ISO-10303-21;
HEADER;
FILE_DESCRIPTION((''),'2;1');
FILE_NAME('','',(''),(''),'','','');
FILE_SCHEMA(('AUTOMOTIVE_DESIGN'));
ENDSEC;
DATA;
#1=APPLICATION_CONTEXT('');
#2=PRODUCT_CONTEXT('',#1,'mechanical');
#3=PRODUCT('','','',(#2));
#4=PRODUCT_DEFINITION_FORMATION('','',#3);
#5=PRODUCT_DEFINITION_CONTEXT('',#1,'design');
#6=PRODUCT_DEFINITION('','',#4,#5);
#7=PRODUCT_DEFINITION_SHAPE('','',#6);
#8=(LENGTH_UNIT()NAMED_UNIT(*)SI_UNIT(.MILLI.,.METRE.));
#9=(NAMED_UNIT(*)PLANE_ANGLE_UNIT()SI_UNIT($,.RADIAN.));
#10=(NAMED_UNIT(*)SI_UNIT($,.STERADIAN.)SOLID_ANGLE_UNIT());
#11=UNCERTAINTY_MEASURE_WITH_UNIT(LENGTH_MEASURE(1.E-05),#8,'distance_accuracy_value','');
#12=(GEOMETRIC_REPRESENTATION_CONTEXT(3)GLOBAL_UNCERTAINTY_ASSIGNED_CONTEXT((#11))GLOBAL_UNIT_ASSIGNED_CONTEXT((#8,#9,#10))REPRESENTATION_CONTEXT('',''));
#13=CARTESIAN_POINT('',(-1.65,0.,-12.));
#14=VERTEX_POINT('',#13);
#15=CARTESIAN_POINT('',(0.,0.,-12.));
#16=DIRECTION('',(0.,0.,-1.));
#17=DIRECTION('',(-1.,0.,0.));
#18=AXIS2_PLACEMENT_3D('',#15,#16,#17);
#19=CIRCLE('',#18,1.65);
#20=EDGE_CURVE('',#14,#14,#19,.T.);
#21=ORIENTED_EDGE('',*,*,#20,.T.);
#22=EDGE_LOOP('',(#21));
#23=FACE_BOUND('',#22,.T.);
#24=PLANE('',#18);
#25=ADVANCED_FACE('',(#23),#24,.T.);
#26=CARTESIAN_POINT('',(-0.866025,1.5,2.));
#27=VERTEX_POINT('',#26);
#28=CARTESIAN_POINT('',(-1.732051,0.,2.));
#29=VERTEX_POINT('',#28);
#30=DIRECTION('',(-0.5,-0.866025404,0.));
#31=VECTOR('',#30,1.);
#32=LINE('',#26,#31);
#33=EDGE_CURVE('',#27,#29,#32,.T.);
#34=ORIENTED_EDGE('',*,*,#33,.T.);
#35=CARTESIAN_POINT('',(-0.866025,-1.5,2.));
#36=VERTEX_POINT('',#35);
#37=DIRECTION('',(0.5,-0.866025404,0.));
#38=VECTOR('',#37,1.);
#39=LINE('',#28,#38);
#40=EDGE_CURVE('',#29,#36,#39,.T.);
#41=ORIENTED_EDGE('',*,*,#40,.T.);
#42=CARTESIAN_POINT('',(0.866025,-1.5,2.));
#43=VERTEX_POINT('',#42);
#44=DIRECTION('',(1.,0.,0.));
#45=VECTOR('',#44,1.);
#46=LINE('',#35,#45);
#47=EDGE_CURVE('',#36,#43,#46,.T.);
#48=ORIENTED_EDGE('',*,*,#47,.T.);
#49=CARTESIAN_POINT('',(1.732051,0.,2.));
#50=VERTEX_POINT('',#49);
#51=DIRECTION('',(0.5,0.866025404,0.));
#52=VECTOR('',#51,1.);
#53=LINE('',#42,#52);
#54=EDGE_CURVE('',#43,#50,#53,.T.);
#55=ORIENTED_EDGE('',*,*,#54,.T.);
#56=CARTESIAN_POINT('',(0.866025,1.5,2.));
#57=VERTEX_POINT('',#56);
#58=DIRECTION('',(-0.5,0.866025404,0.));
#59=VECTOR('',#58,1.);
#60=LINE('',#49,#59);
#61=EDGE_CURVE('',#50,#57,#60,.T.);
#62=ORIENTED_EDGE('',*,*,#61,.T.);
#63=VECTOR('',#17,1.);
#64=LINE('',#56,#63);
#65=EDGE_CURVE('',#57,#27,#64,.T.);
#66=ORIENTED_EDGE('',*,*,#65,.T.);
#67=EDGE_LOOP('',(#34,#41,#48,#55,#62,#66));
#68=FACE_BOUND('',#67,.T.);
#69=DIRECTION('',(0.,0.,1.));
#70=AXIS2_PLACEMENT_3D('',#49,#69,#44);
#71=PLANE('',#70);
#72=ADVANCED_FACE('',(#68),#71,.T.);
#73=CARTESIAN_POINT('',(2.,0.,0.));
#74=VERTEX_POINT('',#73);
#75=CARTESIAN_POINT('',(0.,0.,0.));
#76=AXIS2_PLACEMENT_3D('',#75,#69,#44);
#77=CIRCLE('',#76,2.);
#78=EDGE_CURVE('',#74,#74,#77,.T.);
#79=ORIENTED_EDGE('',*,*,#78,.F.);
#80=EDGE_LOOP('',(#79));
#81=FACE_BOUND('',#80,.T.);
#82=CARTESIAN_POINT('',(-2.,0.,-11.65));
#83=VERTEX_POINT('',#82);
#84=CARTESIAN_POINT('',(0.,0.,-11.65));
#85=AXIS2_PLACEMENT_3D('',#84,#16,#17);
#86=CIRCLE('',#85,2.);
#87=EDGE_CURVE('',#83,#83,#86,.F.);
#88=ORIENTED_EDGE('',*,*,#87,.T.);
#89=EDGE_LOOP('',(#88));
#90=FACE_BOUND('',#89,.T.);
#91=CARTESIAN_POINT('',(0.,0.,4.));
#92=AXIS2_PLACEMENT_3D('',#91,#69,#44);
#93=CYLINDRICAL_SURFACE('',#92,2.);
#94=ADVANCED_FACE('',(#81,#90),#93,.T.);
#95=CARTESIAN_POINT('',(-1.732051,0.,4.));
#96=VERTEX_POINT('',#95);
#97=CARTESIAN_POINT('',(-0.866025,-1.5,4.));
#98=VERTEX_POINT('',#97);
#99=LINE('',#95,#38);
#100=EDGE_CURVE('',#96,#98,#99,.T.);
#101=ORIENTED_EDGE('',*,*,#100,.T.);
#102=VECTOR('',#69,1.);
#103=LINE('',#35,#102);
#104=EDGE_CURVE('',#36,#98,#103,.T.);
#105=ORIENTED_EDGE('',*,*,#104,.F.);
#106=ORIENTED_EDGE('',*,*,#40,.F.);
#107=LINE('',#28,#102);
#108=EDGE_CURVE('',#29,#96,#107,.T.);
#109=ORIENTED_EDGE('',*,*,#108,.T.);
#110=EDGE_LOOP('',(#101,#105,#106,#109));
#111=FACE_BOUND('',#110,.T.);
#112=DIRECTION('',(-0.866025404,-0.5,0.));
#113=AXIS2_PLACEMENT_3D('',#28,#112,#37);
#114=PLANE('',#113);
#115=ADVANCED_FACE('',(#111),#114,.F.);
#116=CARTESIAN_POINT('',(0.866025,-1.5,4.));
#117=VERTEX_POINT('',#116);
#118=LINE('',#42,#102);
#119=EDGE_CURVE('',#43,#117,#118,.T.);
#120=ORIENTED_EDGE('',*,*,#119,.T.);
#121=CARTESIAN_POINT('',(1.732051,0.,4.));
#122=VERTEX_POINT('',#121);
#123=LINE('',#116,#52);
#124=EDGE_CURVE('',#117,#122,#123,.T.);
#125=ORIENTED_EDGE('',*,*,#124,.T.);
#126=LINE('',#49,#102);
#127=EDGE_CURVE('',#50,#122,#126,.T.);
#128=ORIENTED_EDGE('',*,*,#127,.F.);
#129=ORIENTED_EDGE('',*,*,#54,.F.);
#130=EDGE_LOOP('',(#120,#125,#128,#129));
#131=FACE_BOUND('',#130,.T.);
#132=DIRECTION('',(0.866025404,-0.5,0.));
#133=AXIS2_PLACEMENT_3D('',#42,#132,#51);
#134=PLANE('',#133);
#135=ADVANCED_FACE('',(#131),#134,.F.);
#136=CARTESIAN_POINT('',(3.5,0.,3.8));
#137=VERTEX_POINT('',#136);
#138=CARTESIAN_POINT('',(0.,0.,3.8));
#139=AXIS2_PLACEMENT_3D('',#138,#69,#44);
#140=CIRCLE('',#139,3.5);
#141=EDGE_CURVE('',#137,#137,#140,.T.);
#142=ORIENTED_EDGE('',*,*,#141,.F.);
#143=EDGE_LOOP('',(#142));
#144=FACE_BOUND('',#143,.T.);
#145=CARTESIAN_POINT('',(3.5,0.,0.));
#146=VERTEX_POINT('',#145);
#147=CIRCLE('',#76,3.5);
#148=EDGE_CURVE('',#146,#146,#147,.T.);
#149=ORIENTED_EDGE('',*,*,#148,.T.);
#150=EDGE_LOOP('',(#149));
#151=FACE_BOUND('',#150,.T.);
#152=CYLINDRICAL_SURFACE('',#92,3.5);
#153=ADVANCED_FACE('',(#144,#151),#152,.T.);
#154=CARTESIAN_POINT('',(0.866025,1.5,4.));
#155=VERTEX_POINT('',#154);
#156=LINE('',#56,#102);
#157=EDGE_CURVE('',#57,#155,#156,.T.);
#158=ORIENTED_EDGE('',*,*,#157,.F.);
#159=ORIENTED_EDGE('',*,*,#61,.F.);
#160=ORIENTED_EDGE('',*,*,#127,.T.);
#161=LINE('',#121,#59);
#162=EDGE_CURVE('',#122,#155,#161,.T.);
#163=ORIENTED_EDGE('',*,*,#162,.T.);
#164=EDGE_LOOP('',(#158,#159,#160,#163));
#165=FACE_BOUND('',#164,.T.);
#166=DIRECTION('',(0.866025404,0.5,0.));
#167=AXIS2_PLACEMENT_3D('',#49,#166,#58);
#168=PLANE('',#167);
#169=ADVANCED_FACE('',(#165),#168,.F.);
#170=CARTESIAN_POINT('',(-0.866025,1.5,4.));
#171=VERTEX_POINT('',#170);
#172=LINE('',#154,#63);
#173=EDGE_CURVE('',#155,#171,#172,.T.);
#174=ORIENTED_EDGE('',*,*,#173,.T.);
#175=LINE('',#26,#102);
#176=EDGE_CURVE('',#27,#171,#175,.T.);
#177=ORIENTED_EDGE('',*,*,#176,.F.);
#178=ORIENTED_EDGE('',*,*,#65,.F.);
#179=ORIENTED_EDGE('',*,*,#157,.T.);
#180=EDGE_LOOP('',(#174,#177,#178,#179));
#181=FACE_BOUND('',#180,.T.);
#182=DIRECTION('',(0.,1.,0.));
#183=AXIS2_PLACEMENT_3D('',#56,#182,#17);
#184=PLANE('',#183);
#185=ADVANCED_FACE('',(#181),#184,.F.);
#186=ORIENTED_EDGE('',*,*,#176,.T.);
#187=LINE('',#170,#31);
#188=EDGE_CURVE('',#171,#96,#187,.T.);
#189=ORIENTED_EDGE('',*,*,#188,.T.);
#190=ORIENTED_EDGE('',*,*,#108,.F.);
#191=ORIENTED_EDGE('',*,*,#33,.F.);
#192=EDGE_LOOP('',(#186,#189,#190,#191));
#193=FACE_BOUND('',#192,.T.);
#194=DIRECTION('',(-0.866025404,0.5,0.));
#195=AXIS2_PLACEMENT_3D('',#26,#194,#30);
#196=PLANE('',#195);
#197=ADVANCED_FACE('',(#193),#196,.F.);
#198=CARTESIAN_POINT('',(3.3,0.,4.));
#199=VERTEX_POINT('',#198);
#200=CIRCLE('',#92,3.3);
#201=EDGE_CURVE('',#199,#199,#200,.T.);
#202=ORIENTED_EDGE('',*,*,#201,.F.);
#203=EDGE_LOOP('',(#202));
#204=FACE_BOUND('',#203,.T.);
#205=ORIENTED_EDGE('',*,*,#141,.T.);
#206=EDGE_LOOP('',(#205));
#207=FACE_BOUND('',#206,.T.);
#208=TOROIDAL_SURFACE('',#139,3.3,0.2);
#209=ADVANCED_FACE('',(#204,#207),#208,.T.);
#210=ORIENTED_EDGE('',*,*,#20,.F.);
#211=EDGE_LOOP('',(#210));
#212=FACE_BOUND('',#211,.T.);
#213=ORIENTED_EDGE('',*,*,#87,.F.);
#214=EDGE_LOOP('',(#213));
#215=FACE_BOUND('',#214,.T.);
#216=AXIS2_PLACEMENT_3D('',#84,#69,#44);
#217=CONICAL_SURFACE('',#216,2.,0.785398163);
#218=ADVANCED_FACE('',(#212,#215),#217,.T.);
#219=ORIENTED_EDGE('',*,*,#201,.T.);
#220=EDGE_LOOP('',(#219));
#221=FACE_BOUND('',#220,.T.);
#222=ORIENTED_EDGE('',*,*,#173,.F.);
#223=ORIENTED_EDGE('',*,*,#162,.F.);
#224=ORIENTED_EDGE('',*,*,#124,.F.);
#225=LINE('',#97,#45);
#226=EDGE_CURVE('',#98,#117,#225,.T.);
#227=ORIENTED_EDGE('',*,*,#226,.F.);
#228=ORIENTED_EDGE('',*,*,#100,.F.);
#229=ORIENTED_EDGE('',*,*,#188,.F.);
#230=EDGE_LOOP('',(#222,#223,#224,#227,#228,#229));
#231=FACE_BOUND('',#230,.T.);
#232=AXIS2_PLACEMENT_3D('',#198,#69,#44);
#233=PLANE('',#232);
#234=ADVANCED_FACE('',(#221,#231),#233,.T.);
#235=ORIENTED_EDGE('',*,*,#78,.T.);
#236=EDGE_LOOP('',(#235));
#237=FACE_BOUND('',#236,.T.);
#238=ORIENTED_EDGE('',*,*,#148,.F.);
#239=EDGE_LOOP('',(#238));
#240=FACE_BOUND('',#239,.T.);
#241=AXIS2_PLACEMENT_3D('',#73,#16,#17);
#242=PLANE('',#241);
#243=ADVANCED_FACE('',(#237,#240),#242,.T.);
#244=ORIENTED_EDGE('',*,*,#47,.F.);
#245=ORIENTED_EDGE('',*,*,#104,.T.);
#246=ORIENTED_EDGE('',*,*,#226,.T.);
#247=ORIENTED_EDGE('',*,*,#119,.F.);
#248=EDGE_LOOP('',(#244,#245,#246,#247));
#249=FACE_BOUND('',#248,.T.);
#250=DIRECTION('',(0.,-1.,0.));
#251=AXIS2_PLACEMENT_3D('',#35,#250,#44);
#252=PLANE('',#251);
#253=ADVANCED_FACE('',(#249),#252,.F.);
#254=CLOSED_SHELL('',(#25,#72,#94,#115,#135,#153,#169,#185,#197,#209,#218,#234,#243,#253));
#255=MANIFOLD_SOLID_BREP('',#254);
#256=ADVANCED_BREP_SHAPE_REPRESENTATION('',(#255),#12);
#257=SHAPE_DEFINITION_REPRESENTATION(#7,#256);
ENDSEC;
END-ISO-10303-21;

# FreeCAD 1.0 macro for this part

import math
import FreeCAD as App
import Part
import Sketcher

V = App.Vector
Q = App.Units.Quantity


def edges_at(feature, points):
    """Names of the edges that pass closest to the given points."""
    edges = feature.Shape.Edges
    near = lambda p: min(range(len(edges)), key=lambda i: edges[i].distToShape(Part.Vertex(*p))[0])
    return sorted({f"Edge{near(p) + 1}" for p in points})

doc = App.newDocument("Part")
body = doc.addObject("PartDesign::Body", "Body")

sketch1 = body.newObject("Sketcher::SketchObject", "Sketch")
sketch1.AttachmentSupport = (doc.getObject("XZ_Plane"), [""])
sketch1.MapMode = "FlatFace"
sketch1.addGeometry(Part.LineSegment(V(-2, -12, 0), V(0, -12, 0)), False)
sketch1.addGeometry(Part.LineSegment(V(0, -12, 0), V(0, 4, 0)), False)
sketch1.addGeometry(Part.LineSegment(V(0, 4, 0), V(-3.3, 4, 0)), False)
sketch1.addGeometry(Part.ArcOfCircle(Part.Circle(V(-3.3, 3.8, 0), V(0, 0, 1), 0.2), math.radians(90), math.radians(180)), False)
sketch1.addGeometry(Part.LineSegment(V(-3.5, 3.8, 0), V(-3.5, 0, 0)), False)
sketch1.addGeometry(Part.LineSegment(V(-3.5, 0, 0), V(-2, 0, 0)), False)
sketch1.addGeometry(Part.LineSegment(V(-2, 0, 0), V(-2, -12, 0)), False)
sketch1.addConstraint(Sketcher.Constraint("Coincident", 0, 2, 1, 1))
sketch1.addConstraint(Sketcher.Constraint("Coincident", 1, 2, 2, 1))
sketch1.addConstraint(Sketcher.Constraint("Tangent", 2, 2, 3, 1))
sketch1.addConstraint(Sketcher.Constraint("Tangent", 3, 2, 4, 1))
sketch1.addConstraint(Sketcher.Constraint("Coincident", 4, 2, 5, 1))
sketch1.addConstraint(Sketcher.Constraint("Coincident", 5, 2, 6, 1))
sketch1.addConstraint(Sketcher.Constraint("Coincident", 6, 2, 0, 1))
sketch1.addConstraint(Sketcher.Constraint("Horizontal", 0))
sketch1.addConstraint(Sketcher.Constraint("Vertical", 1))
sketch1.addConstraint(Sketcher.Constraint("Horizontal", 2))
sketch1.addConstraint(Sketcher.Constraint("Vertical", 4))
sketch1.addConstraint(Sketcher.Constraint("Horizontal", 5))
sketch1.addConstraint(Sketcher.Constraint("Vertical", 6))
sketch1.addConstraint(Sketcher.Constraint("PointOnObject", 0, 2, -2))
sketch1.addConstraint(Sketcher.Constraint("PointOnObject", 4, 2, -1))
sketch1.addConstraint(Sketcher.Constraint("Radius", 3, Q("0.2 mm")))
sketch1.addConstraint(Sketcher.Constraint("DistanceX", 0, 1, 0, 2, Q("2 mm")))
sketch1.addConstraint(Sketcher.Constraint("DistanceY", 1, 1, 1, 2, Q("16 mm")))
sketch1.addConstraint(Sketcher.Constraint("DistanceY", 6, 2, 6, 1, Q("12 mm")))
sketch1.addConstraint(Sketcher.Constraint("DistanceX", 2, 2, 2, 1, Q("3.3 mm")))
revolution = body.newObject("PartDesign::Revolution", "Revolution")
revolution.Profile = sketch1
revolution.ReferenceAxis = (sketch1, ["V_Axis"])
revolution.Angle = 360

sketch2 = body.newObject("Sketcher::SketchObject", "Sketch001")
sketch2.AttachmentSupport = (doc.getObject("XY_Plane"), [""])
sketch2.MapMode = "FlatFace"
sketch2.AttachmentOffset = App.Placement(V(0, 0, 4), App.Rotation())
sketch2.addGeometry(Part.LineSegment(V(1.732051, 0, 0), V(0.866025, 1.5, 0)), False)
sketch2.addGeometry(Part.LineSegment(V(0.866025, 1.5, 0), V(-0.866025, 1.5, 0)), False)
sketch2.addGeometry(Part.LineSegment(V(-0.866025, 1.5, 0), V(-1.732051, 0, 0)), False)
sketch2.addGeometry(Part.LineSegment(V(-1.732051, 0, 0), V(-0.866025, -1.5, 0)), False)
sketch2.addGeometry(Part.LineSegment(V(-0.866025, -1.5, 0), V(0.866025, -1.5, 0)), False)
sketch2.addGeometry(Part.LineSegment(V(0.866025, -1.5, 0), V(1.732051, 0, 0)), False)
sketch2.addConstraint(Sketcher.Constraint("Coincident", 0, 2, 1, 1))
sketch2.addConstraint(Sketcher.Constraint("Coincident", 1, 2, 2, 1))
sketch2.addConstraint(Sketcher.Constraint("Coincident", 2, 2, 3, 1))
sketch2.addConstraint(Sketcher.Constraint("Coincident", 3, 2, 4, 1))
sketch2.addConstraint(Sketcher.Constraint("Coincident", 4, 2, 5, 1))
sketch2.addConstraint(Sketcher.Constraint("Coincident", 5, 2, 0, 1))
sketch2.addConstraint(Sketcher.Constraint("Horizontal", 1))
sketch2.addConstraint(Sketcher.Constraint("Horizontal", 4))
sketch2.addConstraint(Sketcher.Constraint("Symmetric", 0, 2, 3, 2, -1, 1))
sketch2.addConstraint(Sketcher.Constraint("Symmetric", 2, 2, 5, 2, -1, 1))
sketch2.addConstraint(Sketcher.Constraint("PointOnObject", 2, 2, -1))
sketch2.addConstraint(Sketcher.Constraint("Parallel", 2, 5))
sketch2.addConstraint(Sketcher.Constraint("Vertical", 1, 2, 3, 2))
sketch2.addConstraint(Sketcher.Constraint("Angle", 0, Q("120 deg")))
sketch2.addConstraint(Sketcher.Constraint("DistanceY", 3, 2, 1, 2, Q("3 mm")))
sketch2.addConstraint(Sketcher.Constraint("DistanceX", 1, 2, 1, 1, Q("1.732051 mm")))
pocket1 = body.newObject("PartDesign::Pocket", "Pocket")
pocket1.Profile = sketch2
pocket1.Length = 2
doc.recompute()

chamfer = body.newObject("PartDesign::Chamfer", "Chamfer")
chamfer.Base = (pocket1, edges_at(pocket1, [(-2, 0, -12)]))
chamfer.Size = 0.35

doc.recompute()
